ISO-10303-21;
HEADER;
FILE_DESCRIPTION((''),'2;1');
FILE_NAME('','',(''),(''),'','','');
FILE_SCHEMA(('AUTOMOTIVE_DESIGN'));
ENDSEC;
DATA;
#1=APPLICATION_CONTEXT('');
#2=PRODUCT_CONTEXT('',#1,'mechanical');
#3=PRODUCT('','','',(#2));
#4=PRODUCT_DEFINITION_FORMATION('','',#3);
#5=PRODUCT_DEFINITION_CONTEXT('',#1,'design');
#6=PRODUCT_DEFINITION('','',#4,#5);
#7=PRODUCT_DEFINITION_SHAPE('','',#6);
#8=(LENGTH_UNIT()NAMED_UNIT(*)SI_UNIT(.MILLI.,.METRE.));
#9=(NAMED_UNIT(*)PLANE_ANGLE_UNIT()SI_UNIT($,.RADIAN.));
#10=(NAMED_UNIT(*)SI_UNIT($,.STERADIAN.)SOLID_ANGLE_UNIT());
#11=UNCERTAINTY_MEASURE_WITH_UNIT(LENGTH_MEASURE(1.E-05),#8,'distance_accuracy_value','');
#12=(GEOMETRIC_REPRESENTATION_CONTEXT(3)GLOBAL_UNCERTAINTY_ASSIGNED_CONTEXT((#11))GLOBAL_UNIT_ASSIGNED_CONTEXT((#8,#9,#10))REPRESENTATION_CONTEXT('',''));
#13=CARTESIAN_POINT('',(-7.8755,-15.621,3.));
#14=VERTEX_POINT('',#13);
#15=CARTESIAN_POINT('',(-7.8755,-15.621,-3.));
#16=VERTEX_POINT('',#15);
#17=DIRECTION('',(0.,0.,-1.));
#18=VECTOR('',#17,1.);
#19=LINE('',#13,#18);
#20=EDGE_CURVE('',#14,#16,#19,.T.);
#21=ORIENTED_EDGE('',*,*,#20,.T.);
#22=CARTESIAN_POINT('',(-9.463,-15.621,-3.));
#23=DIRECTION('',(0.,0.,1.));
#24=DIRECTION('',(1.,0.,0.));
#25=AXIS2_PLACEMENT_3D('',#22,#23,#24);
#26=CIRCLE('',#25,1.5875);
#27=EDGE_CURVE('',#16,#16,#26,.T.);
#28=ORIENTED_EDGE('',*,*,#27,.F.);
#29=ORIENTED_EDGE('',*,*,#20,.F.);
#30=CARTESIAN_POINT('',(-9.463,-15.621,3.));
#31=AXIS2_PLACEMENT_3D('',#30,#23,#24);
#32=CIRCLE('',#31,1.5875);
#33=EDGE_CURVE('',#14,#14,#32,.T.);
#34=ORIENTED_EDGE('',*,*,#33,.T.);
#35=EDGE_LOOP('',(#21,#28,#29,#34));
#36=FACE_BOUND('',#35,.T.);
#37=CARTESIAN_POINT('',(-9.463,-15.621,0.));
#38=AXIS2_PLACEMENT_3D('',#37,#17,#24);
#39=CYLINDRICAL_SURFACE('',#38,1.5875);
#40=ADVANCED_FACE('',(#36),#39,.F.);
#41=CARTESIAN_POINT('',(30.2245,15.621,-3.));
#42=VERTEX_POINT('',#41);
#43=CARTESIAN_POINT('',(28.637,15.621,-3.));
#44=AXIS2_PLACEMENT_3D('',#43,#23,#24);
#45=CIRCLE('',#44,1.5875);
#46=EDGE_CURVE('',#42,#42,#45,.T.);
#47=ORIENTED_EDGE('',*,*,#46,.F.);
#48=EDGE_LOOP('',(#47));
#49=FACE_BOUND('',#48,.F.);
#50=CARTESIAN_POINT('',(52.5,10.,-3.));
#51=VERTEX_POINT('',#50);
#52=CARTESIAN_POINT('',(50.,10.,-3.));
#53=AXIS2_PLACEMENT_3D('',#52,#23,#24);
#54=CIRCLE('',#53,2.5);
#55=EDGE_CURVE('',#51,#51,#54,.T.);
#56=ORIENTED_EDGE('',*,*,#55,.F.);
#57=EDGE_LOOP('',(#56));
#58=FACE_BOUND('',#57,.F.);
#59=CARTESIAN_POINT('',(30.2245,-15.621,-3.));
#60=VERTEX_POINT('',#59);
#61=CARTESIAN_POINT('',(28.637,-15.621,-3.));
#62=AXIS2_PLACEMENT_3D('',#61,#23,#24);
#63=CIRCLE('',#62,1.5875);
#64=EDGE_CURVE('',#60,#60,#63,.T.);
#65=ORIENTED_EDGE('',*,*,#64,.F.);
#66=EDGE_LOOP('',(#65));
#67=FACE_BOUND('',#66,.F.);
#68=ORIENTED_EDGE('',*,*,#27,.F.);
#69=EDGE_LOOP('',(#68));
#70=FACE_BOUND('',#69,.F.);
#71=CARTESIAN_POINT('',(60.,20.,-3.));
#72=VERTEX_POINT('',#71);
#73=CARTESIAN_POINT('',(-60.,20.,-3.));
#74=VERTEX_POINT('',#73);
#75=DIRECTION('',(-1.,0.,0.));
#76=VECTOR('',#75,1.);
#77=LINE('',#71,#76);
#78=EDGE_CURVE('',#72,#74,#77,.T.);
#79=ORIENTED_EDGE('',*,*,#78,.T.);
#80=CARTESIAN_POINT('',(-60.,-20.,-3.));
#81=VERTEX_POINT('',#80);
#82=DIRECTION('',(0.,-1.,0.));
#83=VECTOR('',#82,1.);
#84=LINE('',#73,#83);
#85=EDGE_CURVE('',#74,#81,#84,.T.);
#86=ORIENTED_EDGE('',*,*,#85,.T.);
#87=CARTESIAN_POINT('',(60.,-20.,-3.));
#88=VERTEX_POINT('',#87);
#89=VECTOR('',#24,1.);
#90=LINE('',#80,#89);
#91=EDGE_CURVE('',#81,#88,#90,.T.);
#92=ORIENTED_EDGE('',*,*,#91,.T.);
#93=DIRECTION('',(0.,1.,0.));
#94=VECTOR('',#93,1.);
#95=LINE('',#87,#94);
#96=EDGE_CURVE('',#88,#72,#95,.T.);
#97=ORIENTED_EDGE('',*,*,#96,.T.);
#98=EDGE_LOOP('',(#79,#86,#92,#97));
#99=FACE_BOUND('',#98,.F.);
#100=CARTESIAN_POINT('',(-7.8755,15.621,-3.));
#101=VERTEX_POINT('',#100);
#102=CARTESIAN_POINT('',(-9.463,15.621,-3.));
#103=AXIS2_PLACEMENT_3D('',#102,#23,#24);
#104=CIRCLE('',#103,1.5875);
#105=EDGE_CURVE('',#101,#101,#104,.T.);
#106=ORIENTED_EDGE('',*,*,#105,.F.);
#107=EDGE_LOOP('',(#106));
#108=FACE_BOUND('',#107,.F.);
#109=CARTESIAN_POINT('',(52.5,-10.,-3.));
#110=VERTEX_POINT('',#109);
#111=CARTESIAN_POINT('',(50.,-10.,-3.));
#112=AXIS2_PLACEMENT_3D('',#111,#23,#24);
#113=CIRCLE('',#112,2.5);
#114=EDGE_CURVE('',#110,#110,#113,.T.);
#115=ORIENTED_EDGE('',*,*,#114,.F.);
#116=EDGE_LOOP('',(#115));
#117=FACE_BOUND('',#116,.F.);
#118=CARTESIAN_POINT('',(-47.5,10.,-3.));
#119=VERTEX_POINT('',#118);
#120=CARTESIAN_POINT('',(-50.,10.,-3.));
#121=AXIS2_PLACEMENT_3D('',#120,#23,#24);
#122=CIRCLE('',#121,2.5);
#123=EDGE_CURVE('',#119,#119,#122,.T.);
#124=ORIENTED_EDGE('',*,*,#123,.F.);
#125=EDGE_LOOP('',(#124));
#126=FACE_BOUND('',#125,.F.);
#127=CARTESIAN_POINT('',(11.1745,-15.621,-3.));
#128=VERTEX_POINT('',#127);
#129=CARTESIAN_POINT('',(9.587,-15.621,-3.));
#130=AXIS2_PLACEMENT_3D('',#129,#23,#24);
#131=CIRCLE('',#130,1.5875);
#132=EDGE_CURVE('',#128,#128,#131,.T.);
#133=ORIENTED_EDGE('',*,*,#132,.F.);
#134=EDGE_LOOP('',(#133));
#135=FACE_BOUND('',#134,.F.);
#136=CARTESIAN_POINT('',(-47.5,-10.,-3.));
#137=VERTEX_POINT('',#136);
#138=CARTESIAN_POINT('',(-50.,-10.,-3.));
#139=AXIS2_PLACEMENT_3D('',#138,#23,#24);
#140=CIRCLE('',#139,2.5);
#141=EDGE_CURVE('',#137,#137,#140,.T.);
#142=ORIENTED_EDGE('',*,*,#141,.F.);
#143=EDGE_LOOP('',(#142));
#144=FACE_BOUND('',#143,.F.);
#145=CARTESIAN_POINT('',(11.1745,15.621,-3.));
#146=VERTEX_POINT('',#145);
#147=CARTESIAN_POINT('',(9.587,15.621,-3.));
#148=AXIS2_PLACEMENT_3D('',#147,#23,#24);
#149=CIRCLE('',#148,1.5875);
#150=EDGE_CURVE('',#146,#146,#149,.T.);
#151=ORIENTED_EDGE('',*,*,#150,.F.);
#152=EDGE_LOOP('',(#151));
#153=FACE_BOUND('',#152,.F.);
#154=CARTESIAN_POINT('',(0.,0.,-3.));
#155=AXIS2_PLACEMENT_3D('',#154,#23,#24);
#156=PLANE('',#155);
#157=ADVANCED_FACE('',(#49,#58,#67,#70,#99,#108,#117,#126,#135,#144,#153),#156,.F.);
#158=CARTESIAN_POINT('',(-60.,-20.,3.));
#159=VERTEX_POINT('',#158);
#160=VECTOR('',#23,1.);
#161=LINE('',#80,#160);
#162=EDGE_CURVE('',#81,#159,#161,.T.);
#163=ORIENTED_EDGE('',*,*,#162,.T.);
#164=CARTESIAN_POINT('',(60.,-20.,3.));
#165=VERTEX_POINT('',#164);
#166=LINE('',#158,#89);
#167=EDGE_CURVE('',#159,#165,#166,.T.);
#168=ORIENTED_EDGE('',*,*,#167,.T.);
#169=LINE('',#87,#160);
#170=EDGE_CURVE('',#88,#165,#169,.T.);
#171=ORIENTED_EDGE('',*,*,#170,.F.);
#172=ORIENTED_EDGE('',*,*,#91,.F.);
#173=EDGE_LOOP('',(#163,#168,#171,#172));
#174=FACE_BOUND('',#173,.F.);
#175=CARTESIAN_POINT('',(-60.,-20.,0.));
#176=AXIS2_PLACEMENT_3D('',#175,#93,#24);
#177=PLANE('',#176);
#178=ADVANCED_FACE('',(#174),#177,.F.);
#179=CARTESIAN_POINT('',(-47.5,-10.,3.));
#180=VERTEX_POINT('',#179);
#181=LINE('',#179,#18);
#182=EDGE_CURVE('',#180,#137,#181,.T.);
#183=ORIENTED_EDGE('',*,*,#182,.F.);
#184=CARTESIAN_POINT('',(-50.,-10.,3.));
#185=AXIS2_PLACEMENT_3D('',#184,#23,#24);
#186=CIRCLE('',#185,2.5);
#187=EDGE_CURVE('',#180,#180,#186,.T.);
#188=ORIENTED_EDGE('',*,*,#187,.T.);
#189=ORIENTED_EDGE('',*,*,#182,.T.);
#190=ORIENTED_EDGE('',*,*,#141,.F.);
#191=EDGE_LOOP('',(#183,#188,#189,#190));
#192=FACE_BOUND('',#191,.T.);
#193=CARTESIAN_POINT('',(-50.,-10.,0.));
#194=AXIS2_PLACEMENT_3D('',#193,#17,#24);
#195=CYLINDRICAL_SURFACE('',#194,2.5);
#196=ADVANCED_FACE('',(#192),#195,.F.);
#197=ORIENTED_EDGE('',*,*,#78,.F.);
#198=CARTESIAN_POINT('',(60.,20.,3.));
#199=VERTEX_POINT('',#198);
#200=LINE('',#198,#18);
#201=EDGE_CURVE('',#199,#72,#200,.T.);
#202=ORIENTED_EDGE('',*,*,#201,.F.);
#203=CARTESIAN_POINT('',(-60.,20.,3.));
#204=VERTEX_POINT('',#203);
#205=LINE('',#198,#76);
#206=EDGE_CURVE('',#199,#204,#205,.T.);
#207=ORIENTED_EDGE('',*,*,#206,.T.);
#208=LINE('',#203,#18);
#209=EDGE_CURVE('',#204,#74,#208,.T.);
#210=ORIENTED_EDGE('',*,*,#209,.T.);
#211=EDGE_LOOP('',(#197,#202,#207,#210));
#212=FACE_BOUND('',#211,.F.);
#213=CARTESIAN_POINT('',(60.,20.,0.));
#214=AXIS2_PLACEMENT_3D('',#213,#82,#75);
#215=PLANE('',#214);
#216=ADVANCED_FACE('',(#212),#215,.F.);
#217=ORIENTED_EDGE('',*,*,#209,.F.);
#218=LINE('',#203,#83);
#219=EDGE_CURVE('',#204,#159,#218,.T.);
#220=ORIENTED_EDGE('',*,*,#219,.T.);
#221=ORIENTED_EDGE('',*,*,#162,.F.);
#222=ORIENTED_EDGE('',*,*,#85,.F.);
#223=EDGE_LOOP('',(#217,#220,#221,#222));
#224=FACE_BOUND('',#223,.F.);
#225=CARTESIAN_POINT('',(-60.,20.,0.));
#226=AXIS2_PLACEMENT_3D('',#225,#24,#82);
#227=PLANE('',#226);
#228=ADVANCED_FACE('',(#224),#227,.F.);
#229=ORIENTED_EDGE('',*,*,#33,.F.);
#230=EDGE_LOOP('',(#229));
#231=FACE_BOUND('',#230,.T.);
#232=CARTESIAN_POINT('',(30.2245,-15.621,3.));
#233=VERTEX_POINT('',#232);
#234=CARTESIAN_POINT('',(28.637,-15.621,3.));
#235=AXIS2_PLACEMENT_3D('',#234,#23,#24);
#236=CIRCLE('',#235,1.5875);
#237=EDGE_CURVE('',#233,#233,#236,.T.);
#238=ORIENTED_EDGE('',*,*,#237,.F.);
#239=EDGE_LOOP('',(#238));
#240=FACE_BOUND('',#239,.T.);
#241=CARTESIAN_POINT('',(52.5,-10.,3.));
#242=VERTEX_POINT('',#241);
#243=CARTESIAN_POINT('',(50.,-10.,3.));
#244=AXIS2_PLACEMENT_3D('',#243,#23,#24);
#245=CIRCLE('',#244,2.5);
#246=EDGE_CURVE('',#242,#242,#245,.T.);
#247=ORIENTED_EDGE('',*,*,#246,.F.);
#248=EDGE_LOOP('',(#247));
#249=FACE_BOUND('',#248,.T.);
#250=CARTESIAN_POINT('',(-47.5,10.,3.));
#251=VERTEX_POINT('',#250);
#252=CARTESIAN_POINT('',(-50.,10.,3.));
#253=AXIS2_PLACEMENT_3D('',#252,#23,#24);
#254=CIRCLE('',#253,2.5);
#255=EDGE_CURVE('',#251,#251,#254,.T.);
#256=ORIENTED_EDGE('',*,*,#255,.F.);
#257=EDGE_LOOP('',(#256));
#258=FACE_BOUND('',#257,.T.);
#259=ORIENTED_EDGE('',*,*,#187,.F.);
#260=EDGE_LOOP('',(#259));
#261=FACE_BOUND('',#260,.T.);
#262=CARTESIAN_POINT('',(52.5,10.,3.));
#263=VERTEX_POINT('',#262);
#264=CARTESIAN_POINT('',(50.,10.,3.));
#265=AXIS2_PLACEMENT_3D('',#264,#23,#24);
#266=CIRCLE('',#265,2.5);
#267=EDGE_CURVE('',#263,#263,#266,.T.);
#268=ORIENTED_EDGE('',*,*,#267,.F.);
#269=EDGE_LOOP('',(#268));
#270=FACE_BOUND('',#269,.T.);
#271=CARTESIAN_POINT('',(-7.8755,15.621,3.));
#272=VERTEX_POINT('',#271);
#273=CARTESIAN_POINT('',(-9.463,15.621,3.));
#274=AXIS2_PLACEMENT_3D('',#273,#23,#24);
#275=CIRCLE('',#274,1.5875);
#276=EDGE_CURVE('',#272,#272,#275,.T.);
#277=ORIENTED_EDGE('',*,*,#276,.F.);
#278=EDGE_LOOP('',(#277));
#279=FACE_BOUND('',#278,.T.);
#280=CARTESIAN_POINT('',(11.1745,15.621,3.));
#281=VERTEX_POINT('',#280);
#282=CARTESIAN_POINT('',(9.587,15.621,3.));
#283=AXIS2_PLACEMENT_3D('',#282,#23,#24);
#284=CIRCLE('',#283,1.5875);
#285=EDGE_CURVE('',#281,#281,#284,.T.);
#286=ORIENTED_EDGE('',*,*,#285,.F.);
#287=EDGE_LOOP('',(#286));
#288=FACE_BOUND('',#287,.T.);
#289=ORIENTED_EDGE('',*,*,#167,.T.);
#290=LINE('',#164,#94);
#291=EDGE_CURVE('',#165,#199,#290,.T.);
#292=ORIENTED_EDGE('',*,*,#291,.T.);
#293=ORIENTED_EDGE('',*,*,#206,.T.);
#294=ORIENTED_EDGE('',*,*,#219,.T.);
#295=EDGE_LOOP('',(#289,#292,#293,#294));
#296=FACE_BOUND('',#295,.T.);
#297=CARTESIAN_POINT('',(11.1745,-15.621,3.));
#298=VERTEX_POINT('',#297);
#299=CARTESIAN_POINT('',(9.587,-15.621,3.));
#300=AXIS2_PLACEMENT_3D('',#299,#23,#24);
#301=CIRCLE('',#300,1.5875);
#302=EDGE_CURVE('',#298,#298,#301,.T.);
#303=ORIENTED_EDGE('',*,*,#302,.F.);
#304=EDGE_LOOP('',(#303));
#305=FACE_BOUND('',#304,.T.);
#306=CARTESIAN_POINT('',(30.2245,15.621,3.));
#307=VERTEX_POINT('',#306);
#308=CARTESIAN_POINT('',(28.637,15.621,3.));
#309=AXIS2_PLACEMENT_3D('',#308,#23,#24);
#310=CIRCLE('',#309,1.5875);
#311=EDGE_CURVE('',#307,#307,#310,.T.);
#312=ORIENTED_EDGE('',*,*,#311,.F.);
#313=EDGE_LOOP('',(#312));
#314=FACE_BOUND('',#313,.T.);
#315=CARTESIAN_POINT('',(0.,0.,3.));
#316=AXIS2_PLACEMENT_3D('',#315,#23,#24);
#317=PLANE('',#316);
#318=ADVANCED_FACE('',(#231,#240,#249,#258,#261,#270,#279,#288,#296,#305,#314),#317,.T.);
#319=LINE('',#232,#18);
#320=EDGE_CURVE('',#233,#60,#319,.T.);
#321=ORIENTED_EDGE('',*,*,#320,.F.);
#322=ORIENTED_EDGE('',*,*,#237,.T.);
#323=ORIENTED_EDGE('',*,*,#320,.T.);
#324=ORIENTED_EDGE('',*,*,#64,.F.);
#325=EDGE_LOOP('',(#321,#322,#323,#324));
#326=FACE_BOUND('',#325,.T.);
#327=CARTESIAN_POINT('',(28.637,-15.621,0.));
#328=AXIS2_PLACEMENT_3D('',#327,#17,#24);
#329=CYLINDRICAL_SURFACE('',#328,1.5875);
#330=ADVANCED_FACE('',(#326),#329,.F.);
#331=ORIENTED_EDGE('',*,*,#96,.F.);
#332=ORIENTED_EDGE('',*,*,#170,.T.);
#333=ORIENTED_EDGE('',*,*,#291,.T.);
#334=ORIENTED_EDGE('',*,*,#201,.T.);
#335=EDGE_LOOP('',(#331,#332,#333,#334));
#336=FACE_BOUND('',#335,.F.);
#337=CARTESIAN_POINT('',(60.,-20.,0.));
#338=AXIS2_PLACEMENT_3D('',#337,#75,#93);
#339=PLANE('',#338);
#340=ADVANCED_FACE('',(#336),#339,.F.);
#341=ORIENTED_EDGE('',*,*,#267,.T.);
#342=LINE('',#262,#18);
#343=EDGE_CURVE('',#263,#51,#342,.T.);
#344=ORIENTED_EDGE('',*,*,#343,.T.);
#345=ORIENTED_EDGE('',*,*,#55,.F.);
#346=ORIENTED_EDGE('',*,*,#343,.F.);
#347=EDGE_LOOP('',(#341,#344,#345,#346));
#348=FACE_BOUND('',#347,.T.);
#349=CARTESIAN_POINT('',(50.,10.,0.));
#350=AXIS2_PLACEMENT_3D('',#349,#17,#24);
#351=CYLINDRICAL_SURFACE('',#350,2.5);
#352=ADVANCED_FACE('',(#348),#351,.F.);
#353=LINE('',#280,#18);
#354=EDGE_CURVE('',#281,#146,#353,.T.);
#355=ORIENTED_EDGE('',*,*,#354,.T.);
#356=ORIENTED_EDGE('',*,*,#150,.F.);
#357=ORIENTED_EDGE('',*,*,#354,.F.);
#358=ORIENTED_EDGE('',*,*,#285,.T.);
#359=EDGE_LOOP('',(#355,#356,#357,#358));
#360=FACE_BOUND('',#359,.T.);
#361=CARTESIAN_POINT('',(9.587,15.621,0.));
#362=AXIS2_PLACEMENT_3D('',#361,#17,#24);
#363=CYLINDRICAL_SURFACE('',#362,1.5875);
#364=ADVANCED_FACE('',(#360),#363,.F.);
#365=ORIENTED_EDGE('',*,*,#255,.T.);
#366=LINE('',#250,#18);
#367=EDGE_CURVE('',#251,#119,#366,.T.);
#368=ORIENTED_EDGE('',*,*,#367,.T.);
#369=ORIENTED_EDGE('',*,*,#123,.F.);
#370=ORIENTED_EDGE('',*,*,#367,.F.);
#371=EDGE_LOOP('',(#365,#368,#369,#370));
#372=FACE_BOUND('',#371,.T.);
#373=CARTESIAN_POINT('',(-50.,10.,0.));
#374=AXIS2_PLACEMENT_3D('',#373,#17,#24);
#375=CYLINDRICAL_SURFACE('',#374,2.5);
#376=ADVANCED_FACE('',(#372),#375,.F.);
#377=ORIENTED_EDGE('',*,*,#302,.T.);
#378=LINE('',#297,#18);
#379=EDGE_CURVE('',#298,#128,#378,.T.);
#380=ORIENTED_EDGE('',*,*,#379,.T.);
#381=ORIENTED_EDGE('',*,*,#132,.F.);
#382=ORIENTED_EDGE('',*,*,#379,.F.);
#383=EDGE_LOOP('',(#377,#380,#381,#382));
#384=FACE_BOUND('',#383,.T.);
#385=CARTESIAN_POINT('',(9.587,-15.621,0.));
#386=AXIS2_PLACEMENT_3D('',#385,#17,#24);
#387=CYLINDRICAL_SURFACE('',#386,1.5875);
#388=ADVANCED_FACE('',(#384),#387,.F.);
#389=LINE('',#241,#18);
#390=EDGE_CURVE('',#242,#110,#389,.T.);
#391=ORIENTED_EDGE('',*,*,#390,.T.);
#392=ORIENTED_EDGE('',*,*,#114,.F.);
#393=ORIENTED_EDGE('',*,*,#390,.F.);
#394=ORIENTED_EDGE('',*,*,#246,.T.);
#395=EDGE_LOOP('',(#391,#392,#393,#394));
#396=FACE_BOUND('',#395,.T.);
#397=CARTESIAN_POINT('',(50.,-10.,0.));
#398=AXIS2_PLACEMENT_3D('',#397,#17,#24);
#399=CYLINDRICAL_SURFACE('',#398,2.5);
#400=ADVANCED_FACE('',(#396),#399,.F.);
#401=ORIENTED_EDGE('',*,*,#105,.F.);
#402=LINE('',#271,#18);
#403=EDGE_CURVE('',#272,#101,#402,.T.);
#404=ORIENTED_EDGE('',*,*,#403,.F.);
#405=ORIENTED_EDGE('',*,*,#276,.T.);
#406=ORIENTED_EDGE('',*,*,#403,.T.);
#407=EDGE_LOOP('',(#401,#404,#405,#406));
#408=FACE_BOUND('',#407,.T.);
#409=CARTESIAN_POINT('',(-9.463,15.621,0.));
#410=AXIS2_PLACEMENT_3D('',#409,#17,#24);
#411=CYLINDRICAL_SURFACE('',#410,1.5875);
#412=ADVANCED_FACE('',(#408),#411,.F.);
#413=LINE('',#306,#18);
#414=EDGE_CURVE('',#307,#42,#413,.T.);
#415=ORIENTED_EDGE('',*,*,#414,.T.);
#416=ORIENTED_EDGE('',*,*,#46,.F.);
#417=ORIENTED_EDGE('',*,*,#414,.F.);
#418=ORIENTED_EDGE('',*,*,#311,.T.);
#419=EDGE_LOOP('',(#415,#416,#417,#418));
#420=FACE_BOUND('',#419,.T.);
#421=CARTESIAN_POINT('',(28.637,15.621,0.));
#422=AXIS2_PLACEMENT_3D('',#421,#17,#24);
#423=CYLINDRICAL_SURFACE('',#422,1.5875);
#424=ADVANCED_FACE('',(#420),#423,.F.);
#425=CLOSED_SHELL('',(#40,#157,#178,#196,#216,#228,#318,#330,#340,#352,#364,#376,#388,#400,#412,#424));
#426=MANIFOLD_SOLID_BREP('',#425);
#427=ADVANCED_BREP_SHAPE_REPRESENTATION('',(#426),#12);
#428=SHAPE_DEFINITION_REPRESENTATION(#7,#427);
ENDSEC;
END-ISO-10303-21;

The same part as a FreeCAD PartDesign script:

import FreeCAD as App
import Part
import Sketcher

V = App.Vector
Q = App.Units.Quantity

doc = App.newDocument("Part")
body = doc.addObject("PartDesign::Body", "Body")

# Sketch on XY plane
sketch1 = body.newObject("Sketcher::SketchObject", "Sketch")
sketch1.AttachmentSupport = (doc.getObject("XY_Plane"), [""])
sketch1.MapMode = "FlatFace"
sketch1.addGeometry([
    Part.LineSegment(V(-60, 20, 0), V(-60, -20, 0)),  # 0
    Part.LineSegment(V(-60, -20, 0), V(60, -20, 0)),  # 1
    Part.LineSegment(V(60, -20, 0), V(60, 20, 0)),  # 2
    Part.LineSegment(V(60, 20, 0), V(-60, 20, 0)),  # 3
    Part.Circle(V(-9.5, -15.6, 0), V(0, 0, 1), 1.6),  # 4
    Part.Circle(V(-50, -10, 0), V(0, 0, 1), 2.5),  # 5
    Part.Circle(V(9.6, -15.6, 0), V(0, 0, 1), 1.6),  # 6
    Part.Circle(V(28.6, -15.6, 0), V(0, 0, 1), 1.6),  # 7
    Part.Circle(V(50, -10, 0), V(0, 0, 1), 2.5),  # 8
    Part.Circle(V(-50, 10, 0), V(0, 0, 1), 2.5),  # 9
    Part.Circle(V(-9.5, 15.6, 0), V(0, 0, 1), 1.6),  # 10
    Part.Circle(V(9.6, 15.6, 0), V(0, 0, 1), 1.6),  # 11
    Part.Circle(V(28.6, 15.6, 0), V(0, 0, 1), 1.6),  # 12
    Part.Circle(V(50, 10, 0), V(0, 0, 1), 2.5),  # 13
], False)
sketch1.addConstraint([
    Sketcher.Constraint("Coincident", 0, 2, 1, 1),
    Sketcher.Constraint("Coincident", 1, 2, 2, 1),
    Sketcher.Constraint("Coincident", 2, 2, 3, 1),
    Sketcher.Constraint("Coincident", 3, 2, 0, 1),
    Sketcher.Constraint("Vertical", 0),
    Sketcher.Constraint("Horizontal", 1),
    Sketcher.Constraint("Vertical", 2),
    Sketcher.Constraint("Horizontal", 3),
    Sketcher.Constraint("Equal", 4, 6),
    Sketcher.Constraint("Equal", 6, 7),
    Sketcher.Constraint("Equal", 5, 8),
    Sketcher.Constraint("Equal", 8, 9),
    Sketcher.Constraint("Equal", 7, 10),
    Sketcher.Constraint("Equal", 10, 11),
    Sketcher.Constraint("Equal", 11, 12),
    Sketcher.Constraint("Equal", 9, 13),
    Sketcher.Constraint("Symmetric", 8, 3, 9, 3, -1, 1),
    Sketcher.Constraint("Symmetric", 5, 3, 13, 3, -1, 1),
    Sketcher.Constraint("Symmetric", 0, 2, 2, 2, -1, 1),
    Sketcher.Constraint("Symmetric", 5, 3, 8, 3, -2),
    Sketcher.Constraint("Symmetric", 4, 3, 10, 3, -1),
    Sketcher.Constraint("Symmetric", 6, 3, 11, 3, -1),
    Sketcher.Constraint("Symmetric", 7, 3, 12, 3, -1),
    Sketcher.Constraint("Horizontal", 4, 3, 6, 3),
    Sketcher.Constraint("Horizontal", 6, 3, 7, 3),
    Sketcher.Constraint("Diameter", 5, Q("5 mm")),
    Sketcher.Constraint("DistanceX", 1, 1, 1, 2, Q("120 mm")),
    Sketcher.Constraint("DistanceY", 0, 2, 0, 1, Q("40 mm")),
    Sketcher.Constraint("Diameter", 4, Q("3.175 mm")),
    Sketcher.Constraint("DistanceY", 5, 3, -1, 1, Q("10 mm")),
    Sketcher.Constraint("DistanceX", 0, 2, 5, 3, Q("10 mm")),
    Sketcher.Constraint("DistanceX", 4, 3, 6, 3, Q("19.05 mm")),
    Sketcher.Constraint("DistanceX", 6, 3, 7, 3, Q("19.05 mm")),
    Sketcher.Constraint("DistanceY", 4, 3, 10, 3, Q("31.242 mm")),
    Sketcher.Constraint("DistanceX", 7, 3, 1, 2, Q("31.363 mm")),
])
pad1 = body.newObject("PartDesign::Pad", "Pad")
pad1.Profile = sketch1
pad1.Length = 6
pad1.Midplane = True

doc.recompute()
